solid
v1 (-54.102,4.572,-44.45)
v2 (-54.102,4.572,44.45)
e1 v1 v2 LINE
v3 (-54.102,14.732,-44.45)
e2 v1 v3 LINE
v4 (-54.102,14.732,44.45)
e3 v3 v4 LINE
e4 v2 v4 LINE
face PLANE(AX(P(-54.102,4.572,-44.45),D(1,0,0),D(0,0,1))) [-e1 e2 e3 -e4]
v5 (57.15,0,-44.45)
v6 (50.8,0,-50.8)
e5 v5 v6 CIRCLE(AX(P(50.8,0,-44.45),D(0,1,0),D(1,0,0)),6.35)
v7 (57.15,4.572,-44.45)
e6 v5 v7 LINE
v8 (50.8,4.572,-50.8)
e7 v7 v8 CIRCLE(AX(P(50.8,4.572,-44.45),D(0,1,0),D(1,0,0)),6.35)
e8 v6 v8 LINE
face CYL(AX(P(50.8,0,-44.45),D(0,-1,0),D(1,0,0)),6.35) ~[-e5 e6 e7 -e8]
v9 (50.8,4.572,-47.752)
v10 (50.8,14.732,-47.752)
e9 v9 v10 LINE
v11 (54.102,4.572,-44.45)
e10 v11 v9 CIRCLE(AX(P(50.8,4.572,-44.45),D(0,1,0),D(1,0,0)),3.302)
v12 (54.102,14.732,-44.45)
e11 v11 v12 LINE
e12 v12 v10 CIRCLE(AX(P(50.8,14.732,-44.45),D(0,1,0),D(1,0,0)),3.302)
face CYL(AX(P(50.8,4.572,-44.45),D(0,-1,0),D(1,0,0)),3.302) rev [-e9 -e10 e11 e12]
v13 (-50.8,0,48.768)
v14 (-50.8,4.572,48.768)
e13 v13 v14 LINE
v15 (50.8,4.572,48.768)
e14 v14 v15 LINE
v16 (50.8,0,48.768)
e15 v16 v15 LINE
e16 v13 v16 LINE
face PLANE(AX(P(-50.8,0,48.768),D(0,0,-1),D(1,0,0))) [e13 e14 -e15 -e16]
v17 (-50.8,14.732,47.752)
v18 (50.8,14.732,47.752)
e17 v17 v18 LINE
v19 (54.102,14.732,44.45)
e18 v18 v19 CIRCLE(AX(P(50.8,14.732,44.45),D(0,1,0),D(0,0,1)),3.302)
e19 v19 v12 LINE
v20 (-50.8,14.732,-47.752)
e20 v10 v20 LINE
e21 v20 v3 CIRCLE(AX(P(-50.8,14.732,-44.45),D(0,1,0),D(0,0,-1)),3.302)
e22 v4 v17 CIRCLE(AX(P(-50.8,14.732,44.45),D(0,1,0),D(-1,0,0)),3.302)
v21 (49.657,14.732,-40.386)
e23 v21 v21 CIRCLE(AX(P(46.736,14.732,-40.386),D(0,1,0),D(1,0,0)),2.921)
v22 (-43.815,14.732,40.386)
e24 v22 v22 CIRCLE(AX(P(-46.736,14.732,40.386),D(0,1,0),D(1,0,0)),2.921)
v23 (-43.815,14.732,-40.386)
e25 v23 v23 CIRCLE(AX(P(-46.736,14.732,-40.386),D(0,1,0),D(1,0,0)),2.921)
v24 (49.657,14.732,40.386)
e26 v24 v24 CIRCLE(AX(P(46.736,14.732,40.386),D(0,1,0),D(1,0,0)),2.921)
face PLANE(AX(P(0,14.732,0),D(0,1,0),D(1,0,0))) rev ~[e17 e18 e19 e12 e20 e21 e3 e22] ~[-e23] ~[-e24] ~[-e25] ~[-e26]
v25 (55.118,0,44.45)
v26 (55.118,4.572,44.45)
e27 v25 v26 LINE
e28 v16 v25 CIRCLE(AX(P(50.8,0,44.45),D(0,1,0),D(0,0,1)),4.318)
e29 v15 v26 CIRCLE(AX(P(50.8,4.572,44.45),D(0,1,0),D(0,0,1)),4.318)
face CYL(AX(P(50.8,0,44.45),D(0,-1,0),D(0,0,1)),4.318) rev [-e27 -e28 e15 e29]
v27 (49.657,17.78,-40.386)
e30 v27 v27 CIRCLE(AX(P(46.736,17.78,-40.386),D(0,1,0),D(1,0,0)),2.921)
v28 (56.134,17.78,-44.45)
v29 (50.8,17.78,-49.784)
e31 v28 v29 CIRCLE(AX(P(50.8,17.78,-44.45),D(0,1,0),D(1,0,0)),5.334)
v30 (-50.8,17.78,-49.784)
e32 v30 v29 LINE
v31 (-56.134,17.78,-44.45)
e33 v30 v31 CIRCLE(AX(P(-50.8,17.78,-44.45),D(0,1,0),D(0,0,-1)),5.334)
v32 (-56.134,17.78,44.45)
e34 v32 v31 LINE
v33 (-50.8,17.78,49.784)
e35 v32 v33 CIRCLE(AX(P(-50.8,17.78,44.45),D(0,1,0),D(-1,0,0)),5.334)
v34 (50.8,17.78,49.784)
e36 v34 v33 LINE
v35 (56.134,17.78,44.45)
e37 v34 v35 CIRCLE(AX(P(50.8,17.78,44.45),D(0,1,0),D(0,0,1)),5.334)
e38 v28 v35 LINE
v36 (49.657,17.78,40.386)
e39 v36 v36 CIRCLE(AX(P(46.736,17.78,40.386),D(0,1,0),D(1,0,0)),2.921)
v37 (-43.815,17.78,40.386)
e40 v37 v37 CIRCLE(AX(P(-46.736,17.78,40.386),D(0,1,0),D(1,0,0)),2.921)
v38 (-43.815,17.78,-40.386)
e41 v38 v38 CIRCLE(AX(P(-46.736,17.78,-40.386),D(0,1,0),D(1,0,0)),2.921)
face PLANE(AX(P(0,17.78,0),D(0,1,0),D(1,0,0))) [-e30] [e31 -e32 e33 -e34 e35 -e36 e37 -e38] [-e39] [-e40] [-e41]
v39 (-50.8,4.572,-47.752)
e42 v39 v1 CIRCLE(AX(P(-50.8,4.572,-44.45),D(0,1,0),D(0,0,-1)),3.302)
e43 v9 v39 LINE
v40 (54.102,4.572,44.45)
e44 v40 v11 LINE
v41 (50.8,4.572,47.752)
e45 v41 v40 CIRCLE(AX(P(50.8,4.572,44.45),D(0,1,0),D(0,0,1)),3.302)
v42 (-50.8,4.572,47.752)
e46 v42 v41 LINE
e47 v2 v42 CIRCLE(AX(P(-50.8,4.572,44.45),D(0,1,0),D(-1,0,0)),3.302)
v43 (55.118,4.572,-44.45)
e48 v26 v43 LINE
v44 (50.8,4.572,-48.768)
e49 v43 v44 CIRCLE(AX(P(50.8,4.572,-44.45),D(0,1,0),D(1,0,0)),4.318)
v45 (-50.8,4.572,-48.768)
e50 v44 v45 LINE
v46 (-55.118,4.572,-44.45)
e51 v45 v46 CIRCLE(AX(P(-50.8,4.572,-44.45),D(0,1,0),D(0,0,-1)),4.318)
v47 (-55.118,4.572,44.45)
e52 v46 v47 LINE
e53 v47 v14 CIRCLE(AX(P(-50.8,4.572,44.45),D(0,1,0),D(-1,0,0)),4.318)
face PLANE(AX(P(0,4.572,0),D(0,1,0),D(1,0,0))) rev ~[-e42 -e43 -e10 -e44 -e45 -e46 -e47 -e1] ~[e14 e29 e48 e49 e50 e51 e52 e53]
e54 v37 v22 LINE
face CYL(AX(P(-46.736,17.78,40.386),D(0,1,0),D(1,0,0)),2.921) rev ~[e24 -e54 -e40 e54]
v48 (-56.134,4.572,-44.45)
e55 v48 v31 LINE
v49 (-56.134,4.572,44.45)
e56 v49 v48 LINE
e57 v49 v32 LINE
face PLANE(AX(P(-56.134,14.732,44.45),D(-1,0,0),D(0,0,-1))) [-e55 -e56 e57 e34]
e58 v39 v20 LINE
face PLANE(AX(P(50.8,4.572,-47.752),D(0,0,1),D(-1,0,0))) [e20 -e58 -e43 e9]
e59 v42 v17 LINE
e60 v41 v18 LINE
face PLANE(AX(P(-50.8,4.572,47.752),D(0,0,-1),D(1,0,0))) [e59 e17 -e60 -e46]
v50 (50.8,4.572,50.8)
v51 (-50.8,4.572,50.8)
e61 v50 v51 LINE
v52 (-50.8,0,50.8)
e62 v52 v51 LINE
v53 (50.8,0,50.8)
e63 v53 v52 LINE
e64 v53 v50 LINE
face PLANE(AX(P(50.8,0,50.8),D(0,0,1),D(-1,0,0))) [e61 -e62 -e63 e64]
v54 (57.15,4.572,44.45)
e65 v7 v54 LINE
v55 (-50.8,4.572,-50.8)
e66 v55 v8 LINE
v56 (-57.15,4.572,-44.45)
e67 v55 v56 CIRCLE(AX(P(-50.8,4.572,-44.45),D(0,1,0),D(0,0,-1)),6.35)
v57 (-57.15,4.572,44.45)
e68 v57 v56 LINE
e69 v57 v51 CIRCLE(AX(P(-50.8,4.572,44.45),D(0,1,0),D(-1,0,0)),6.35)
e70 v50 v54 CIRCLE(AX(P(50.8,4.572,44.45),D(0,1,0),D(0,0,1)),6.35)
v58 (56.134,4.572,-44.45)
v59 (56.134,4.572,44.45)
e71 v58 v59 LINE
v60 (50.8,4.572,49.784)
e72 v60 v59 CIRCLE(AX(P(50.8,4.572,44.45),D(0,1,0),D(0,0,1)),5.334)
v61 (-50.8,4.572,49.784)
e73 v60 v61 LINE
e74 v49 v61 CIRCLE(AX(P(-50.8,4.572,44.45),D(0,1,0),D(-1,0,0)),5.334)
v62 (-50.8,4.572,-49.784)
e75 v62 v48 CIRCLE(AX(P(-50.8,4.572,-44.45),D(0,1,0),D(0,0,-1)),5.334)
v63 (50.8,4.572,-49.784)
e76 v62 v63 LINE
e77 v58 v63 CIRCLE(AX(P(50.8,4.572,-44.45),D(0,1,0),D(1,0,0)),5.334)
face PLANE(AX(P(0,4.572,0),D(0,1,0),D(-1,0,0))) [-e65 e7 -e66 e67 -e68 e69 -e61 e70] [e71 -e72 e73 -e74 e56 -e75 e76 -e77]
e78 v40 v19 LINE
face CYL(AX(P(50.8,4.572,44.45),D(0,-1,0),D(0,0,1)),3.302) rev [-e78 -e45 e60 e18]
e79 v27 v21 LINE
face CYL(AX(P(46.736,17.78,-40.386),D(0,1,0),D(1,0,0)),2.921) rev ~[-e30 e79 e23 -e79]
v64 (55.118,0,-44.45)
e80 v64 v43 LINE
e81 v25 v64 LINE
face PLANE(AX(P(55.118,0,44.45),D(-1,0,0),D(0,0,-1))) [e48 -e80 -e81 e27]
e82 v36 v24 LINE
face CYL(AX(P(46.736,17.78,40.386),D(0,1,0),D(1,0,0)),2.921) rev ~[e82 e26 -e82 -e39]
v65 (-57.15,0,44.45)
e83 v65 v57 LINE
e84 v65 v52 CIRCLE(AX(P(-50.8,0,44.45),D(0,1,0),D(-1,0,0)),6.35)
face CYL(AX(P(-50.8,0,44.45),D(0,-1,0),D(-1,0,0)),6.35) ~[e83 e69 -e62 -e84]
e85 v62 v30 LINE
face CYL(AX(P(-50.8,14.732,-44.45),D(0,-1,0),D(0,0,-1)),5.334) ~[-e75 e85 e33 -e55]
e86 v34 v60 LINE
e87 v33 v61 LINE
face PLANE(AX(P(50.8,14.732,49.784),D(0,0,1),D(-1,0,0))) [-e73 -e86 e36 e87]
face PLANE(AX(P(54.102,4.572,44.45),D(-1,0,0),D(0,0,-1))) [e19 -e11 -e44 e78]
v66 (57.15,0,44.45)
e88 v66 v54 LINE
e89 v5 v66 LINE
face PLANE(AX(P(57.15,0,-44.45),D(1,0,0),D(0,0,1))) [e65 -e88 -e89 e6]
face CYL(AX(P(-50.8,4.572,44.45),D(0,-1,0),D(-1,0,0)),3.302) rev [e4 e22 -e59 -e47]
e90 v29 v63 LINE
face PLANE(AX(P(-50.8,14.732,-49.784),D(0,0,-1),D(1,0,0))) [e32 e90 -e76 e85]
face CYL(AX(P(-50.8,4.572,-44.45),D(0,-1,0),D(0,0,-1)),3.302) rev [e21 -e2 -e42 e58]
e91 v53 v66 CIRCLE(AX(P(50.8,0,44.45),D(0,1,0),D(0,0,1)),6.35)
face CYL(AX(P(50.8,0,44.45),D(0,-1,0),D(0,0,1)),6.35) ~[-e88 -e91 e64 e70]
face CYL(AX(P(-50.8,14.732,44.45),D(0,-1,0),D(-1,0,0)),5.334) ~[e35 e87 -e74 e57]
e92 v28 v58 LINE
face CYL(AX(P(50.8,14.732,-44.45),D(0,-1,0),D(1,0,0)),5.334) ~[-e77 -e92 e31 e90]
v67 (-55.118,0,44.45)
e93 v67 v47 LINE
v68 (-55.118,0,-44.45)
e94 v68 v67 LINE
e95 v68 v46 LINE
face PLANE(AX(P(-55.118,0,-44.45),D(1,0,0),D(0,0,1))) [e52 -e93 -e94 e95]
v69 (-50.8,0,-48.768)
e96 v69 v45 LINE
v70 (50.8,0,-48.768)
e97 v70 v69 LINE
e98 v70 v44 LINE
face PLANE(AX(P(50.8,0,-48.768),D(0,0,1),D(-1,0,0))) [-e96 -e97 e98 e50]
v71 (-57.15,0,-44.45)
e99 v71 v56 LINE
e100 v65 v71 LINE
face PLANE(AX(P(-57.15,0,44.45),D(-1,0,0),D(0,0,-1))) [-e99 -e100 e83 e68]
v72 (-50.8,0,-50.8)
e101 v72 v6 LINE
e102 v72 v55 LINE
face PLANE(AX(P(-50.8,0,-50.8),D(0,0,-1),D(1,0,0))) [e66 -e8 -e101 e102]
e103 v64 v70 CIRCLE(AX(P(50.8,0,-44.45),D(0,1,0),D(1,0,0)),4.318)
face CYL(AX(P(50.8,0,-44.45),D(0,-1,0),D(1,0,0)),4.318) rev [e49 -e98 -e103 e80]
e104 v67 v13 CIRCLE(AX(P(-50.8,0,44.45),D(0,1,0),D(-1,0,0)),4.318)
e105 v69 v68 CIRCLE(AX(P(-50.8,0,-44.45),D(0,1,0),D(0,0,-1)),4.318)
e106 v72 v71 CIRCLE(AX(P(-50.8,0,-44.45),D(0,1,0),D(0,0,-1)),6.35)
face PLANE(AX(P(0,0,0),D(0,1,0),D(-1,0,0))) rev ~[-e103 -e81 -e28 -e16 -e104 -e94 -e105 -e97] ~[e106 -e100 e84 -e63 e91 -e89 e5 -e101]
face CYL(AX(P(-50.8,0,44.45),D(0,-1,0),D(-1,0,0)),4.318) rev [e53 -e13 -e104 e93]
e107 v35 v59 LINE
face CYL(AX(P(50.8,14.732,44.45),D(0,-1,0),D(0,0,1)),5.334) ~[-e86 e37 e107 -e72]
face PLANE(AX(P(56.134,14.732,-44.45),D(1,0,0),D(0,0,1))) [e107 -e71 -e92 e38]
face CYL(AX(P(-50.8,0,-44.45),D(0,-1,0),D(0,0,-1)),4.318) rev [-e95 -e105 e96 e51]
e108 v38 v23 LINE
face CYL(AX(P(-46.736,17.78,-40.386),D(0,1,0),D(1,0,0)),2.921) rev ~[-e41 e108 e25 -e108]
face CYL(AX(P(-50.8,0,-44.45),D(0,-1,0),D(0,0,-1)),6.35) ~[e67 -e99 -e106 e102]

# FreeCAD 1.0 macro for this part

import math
import FreeCAD as App
import Part
import Sketcher

V = App.Vector
Q = App.Units.Quantity

doc = App.newDocument("Part")
body = doc.addObject("PartDesign::Body", "Body")

sketch1 = doc.addObject("Sketcher::SketchObject", "Sketch")
body.addObject(sketch1)
sketch1.AttachmentSupport = (doc.XZ_Plane, [""])
sketch1.MapMode = "FlatFace"
sketch1.addGeometry(Part.LineSegment(V(-50.8, 50.8, 0), V(50.8, 50.8, 0)), False)
sketch1.addGeometry(Part.ArcOfCircle(Part.Circle(V(50.8, 44.5, 0), V(0, 0, 1), 6.3), math.radians(0), math.radians(90)), False)
sketch1.addGeometry(Part.LineSegment(V(57.1, 44.5, 0), V(57.1, -44.5, 0)), False)
sketch1.addGeometry(Part.ArcOfCircle(Part.Circle(V(50.8, -44.5, 0), V(0, 0, 1), 6.4), math.radians(-90), math.radians(0)), False)
sketch1.addGeometry(Part.LineSegment(V(50.8, -50.8, 0), V(-50.8, -50.8, 0)), False)
sketch1.addGeometry(Part.ArcOfCircle(Part.Circle(V(-50.8, -44.5, 0), V(0, 0, 1), 6.3), math.radians(180), math.radians(270)), False)
sketch1.addGeometry(Part.LineSegment(V(-57.1, -44.5, 0), V(-57.1, 44.5, 0)), False)
sketch1.addGeometry(Part.ArcOfCircle(Part.Circle(V(-50.8, 44.5, 0), V(0, 0, 1), 6.4), math.radians(90), math.radians(180)), False)
sketch1.addGeometry(Part.LineSegment(V(50.8, 48.8, 0), V(-50.8, 48.8, 0)), False)
sketch1.addGeometry(Part.ArcOfCircle(Part.Circle(V(-50.8, 44.5, 0), V(0, 0, 1), 4.3), math.radians(90), math.radians(180)), False)
sketch1.addGeometry(Part.LineSegment(V(-55.1, 44.5, 0), V(-55.1, -44.5, 0)), False)
sketch1.addGeometry(Part.ArcOfCircle(Part.Circle(V(-50.8, -44.5, 0), V(0, 0, 1), 4.3), math.radians(180), math.radians(270)), False)
sketch1.addGeometry(Part.LineSegment(V(-50.8, -48.8, 0), V(50.8, -48.8, 0)), False)
sketch1.addGeometry(Part.ArcOfCircle(Part.Circle(V(50.8, -44.5, 0), V(0, 0, 1), 4.3), math.radians(-90), math.radians(0)), False)
sketch1.addGeometry(Part.LineSegment(V(55.1, -44.5, 0), V(55.1, 44.5, 0)), False)
sketch1.addGeometry(Part.ArcOfCircle(Part.Circle(V(50.8, 44.5, 0), V(0, 0, 1), 4.3), math.radians(0), math.radians(90)), False)
sketch1.addConstraint(Sketcher.Constraint("Tangent", 0, 2, 1, 2))
sketch1.addConstraint(Sketcher.Constraint("Tangent", 1, 1, 2, 1))
sketch1.addConstraint(Sketcher.Constraint("Tangent", 2, 2, 3, 2))
sketch1.addConstraint(Sketcher.Constraint("Tangent", 3, 1, 4, 1))
sketch1.addConstraint(Sketcher.Constraint("Tangent", 4, 2, 5, 2))
sketch1.addConstraint(Sketcher.Constraint("Tangent", 5, 1, 6, 1))
sketch1.addConstraint(Sketcher.Constraint("Tangent", 6, 2, 7, 2))
sketch1.addConstraint(Sketcher.Constraint("Tangent", 7, 1, 0, 1))
sketch1.addConstraint(Sketcher.Constraint("Tangent", 8, 2, 9, 1))
sketch1.addConstraint(Sketcher.Constraint("Tangent", 9, 2, 10, 1))
sketch1.addConstraint(Sketcher.Constraint("Tangent", 10, 2, 11, 1))
sketch1.addConstraint(Sketcher.Constraint("Tangent", 11, 2, 12, 1))
sketch1.addConstraint(Sketcher.Constraint("Tangent", 12, 2, 13, 1))
sketch1.addConstraint(Sketcher.Constraint("Tangent", 13, 2, 14, 1))
sketch1.addConstraint(Sketcher.Constraint("Tangent", 14, 2, 15, 1))
sketch1.addConstraint(Sketcher.Constraint("Tangent", 15, 2, 8, 1))
sketch1.addConstraint(Sketcher.Constraint("Horizontal", 0))
sketch1.addConstraint(Sketcher.Constraint("Vertical", 2))
sketch1.addConstraint(Sketcher.Constraint("Horizontal", 4))
sketch1.addConstraint(Sketcher.Constraint("Vertical", 6))
sketch1.addConstraint(Sketcher.Constraint("Horizontal", 8))
sketch1.addConstraint(Sketcher.Constraint("Vertical", 10))
sketch1.addConstraint(Sketcher.Constraint("Horizontal", 12))
sketch1.addConstraint(Sketcher.Constraint("Vertical", 14))
sketch1.addConstraint(Sketcher.Constraint("Coincident", 9, 3, 7, 3))
sketch1.addConstraint(Sketcher.Constraint("Coincident", 11, 3, 5, 3))
sketch1.addConstraint(Sketcher.Constraint("Coincident", 13, 3, 3, 3))
sketch1.addConstraint(Sketcher.Constraint("Equal", 1, 3))
sketch1.addConstraint(Sketcher.Constraint("Equal", 3, 5))
sketch1.addConstraint(Sketcher.Constraint("Equal", 5, 7))
sketch1.addConstraint(Sketcher.Constraint("Equal", 13, 15))
sketch1.addConstraint(Sketcher.Constraint("Symmetric", 1, 3, 5, 3, -1, 1))
sketch1.addConstraint(Sketcher.Constraint("DistanceX", 0, 1, 0, 2, Q("4 in")))
sketch1.addConstraint(Sketcher.Constraint("Radius", 1, Q("0.25 in")))
sketch1.addConstraint(Sketcher.Constraint("Radius", 9, Q("0.17 in")))
sketch1.addConstraint(Sketcher.Constraint("DistanceY", 2, 2, 2, 1, Q("3.5 in")))
pad1 = doc.addObject("PartDesign::Pad", "Pad")
body.addObject(pad1)
pad1.Profile = sketch1
pad1.Length = Q("0.18 in")
pad1.Reversed = True

sketch2 = doc.addObject("Sketcher::SketchObject", "Sketch001")
body.addObject(sketch2)
sketch2.AttachmentSupport = (doc.XZ_Plane, [""])
sketch2.MapMode = "FlatFace"
sketch2.AttachmentOffset = App.Placement(V(0, 0, -0.18 * 25.4), App.Rotation())
sketch2.addGeometry(Part.LineSegment(V(50.8, -49.8, 0), V(-50.8, -49.8, 0)), False)
sketch2.addGeometry(Part.ArcOfCircle(Part.Circle(V(-50.8, -44.5, 0), V(0, 0, 1), 5.3), math.radians(180), math.radians(270)), False)
sketch2.addGeometry(Part.LineSegment(V(-56.1, -44.5, 0), V(-56.1, 44.5, 0)), False)
sketch2.addGeometry(Part.ArcOfCircle(Part.Circle(V(-50.8, 44.5, 0), V(0, 0, 1), 5.3), math.radians(90), math.radians(180)), False)
sketch2.addGeometry(Part.LineSegment(V(-50.8, 49.8, 0), V(50.8, 49.8, 0)), False)
sketch2.addGeometry(Part.ArcOfCircle(Part.Circle(V(50.8, 44.5, 0), V(0, 0, 1), 5.3), math.radians(0), math.radians(90)), False)
sketch2.addGeometry(Part.LineSegment(V(56.1, 44.5, 0), V(56.1, -44.5, 0)), False)
sketch2.addGeometry(Part.ArcOfCircle(Part.Circle(V(50.8, -44.5, 0), V(0, 0, 1), 5.3), math.radians(-90), math.radians(0)), False)
sketch2.addGeometry(Part.LineSegment(V(-54.1, 44.5, 0), V(-54.1, -44.5, 0)), False)
sketch2.addGeometry(Part.ArcOfCircle(Part.Circle(V(-50.8, -44.5, 0), V(0, 0, 1), 3.3), math.radians(180), math.radians(270)), False)
sketch2.addGeometry(Part.LineSegment(V(-50.8, -47.8, 0), V(50.8, -47.8, 0)), False)
sketch2.addGeometry(Part.ArcOfCircle(Part.Circle(V(50.8, -44.5, 0), V(0, 0, 1), 3.3), math.radians(-90), math.radians(0)), False)
sketch2.addGeometry(Part.LineSegment(V(54.1, -44.5, 0), V(54.1, 44.5, 0)), False)
sketch2.addGeometry(Part.ArcOfCircle(Part.Circle(V(50.8, 44.5, 0), V(0, 0, 1), 3.3), math.radians(0), math.radians(90)), False)
sketch2.addGeometry(Part.LineSegment(V(50.8, 47.8, 0), V(-50.8, 47.8, 0)), False)
sketch2.addGeometry(Part.ArcOfCircle(Part.Circle(V(-50.8, 44.5, 0), V(0, 0, 1), 3.3), math.radians(90), math.radians(180)), False)
sketch2.addConstraint(Sketcher.Constraint("Tangent", 0, 2, 1, 2))
sketch2.addConstraint(Sketcher.Constraint("Tangent", 1, 1, 2, 1))
sketch2.addConstraint(Sketcher.Constraint("Tangent", 2, 2, 3, 2))
sketch2.addConstraint(Sketcher.Constraint("Tangent", 3, 1, 4, 1))
sketch2.addConstraint(Sketcher.Constraint("Tangent", 4, 2, 5, 2))
sketch2.addConstraint(Sketcher.Constraint("Tangent", 5, 1, 6, 1))
sketch2.addConstraint(Sketcher.Constraint("Tangent", 6, 2, 7, 2))
sketch2.addConstraint(Sketcher.Constraint("Tangent", 7, 1, 0, 1))
sketch2.addConstraint(Sketcher.Constraint("Tangent", 8, 2, 9, 1))
sketch2.addConstraint(Sketcher.Constraint("Tangent", 9, 2, 10, 1))
sketch2.addConstraint(Sketcher.Constraint("Tangent", 10, 2, 11, 1))
sketch2.addConstraint(Sketcher.Constraint("Tangent", 11, 2, 12, 1))
sketch2.addConstraint(Sketcher.Constraint("Tangent", 12, 2, 13, 1))
sketch2.addConstraint(Sketcher.Constraint("Tangent", 13, 2, 14, 1))
sketch2.addConstraint(Sketcher.Constraint("Tangent", 14, 2, 15, 1))
sketch2.addConstraint(Sketcher.Constraint("Tangent", 15, 2, 8, 1))
sketch2.addConstraint(Sketcher.Constraint("Horizontal", 0))
sketch2.addConstraint(Sketcher.Constraint("Vertical", 2))
sketch2.addConstraint(Sketcher.Constraint("Horizontal", 4))
sketch2.addConstraint(Sketcher.Constraint("Vertical", 6))
sketch2.addConstraint(Sketcher.Constraint("Vertical", 8))
sketch2.addConstraint(Sketcher.Constraint("Horizontal", 10))
sketch2.addConstraint(Sketcher.Constraint("Vertical", 12))
sketch2.addConstraint(Sketcher.Constraint("Horizontal", 14))
sketch2.addConstraint(Sketcher.Constraint("Coincident", 9, 3, 1, 3))
sketch2.addConstraint(Sketcher.Constraint("Coincident", 11, 3, 7, 3))
sketch2.addConstraint(Sketcher.Constraint("Coincident", 13, 3, 5, 3))
sketch2.addConstraint(Sketcher.Constraint("Equal", 1, 3))
sketch2.addConstraint(Sketcher.Constraint("Equal", 3, 5))
sketch2.addConstraint(Sketcher.Constraint("Equal", 5, 7))
sketch2.addConstraint(Sketcher.Constraint("Equal", 13, 15))
sketch2.addConstraint(Sketcher.Constraint("Symmetric", 1, 3, 5, 3, -1, 1))
sketch2.addConstraint(Sketcher.Constraint("DistanceX", 0, 2, 0, 1, Q("4 in")))
sketch2.addConstraint(Sketcher.Constraint("Radius", 1, Q("0.21 in")))
sketch2.addConstraint(Sketcher.Constraint("Radius", 9, Q("0.13 in")))
sketch2.addConstraint(Sketcher.Constraint("DistanceY", 2, 1, 2, 2, Q("3.5 in")))
pad2 = doc.addObject("PartDesign::Pad", "Pad001")
body.addObject(pad2)
pad2.Profile = sketch2
pad2.Length = Q("0.4 in")
pad2.Reversed = True

sketch3 = doc.addObject("Sketcher::SketchObject", "Sketch002")
body.addObject(sketch3)
sketch3.AttachmentSupport = (doc.XZ_Plane, [""])
sketch3.MapMode = "FlatFace"
sketch3.AttachmentOffset = App.Placement(V(0, 0, -0.58 * 25.4), App.Rotation())
sketch3.addGeometry(Part.LineSegment(V(51, -50, 0), V(-51, -50, 0)), False)
sketch3.addGeometry(Part.ArcOfCircle(Part.Circle(V(-51, -44, 0), V(0, 0, 1), 5), math.radians(180), math.radians(270)), False)
sketch3.addGeometry(Part.LineSegment(V(-56, -44, 0), V(-56, 44, 0)), False)
sketch3.addGeometry(Part.ArcOfCircle(Part.Circle(V(-51, 44, 0), V(0, 0, 1), 5), math.radians(90), math.radians(180)), False)
sketch3.addGeometry(Part.LineSegment(V(-51, 50, 0), V(51, 50, 0)), False)
sketch3.addGeometry(Part.ArcOfCircle(Part.Circle(V(51, 44, 0), V(0, 0, 1), 5), math.radians(0), math.radians(90)), False)
sketch3.addGeometry(Part.LineSegment(V(56, 44, 0), V(56, -44, 0)), False)
sketch3.addGeometry(Part.ArcOfCircle(Part.Circle(V(51, -44, 0), V(0, 0, 1), 5), math.radians(-90), math.radians(0)), False)
sketch3.addConstraint(Sketcher.Constraint("Tangent", 0, 2, 1, 2))
sketch3.addConstraint(Sketcher.Constraint("Tangent", 1, 1, 2, 1))
sketch3.addConstraint(Sketcher.Constraint("Tangent", 2, 2, 3, 2))
sketch3.addConstraint(Sketcher.Constraint("Tangent", 3, 1, 4, 1))
sketch3.addConstraint(Sketcher.Constraint("Tangent", 4, 2, 5, 2))
sketch3.addConstraint(Sketcher.Constraint("Tangent", 5, 1, 6, 1))
sketch3.addConstraint(Sketcher.Constraint("Tangent", 6, 2, 7, 2))
sketch3.addConstraint(Sketcher.Constraint("Tangent", 7, 1, 0, 1))
sketch3.addConstraint(Sketcher.Constraint("Horizontal", 0))
sketch3.addConstraint(Sketcher.Constraint("Vertical", 2))
sketch3.addConstraint(Sketcher.Constraint("Horizontal", 4))
sketch3.addConstraint(Sketcher.Constraint("Vertical", 6))
sketch3.addConstraint(Sketcher.Constraint("Equal", 1, 3))
sketch3.addConstraint(Sketcher.Constraint("Equal", 3, 5))
sketch3.addConstraint(Sketcher.Constraint("Equal", 5, 7))
sketch3.addConstraint(Sketcher.Constraint("Symmetric", 1, 3, 5, 3, -1, 1))
sketch3.addConstraint(Sketcher.Constraint("DistanceX", 0, 2, 0, 1, Q("4 in")))
sketch3.addConstraint(Sketcher.Constraint("Radius", 1, Q("0.21 in")))
sketch3.addConstraint(Sketcher.Constraint("DistanceY", 2, 1, 2, 2, Q("3.5 in")))
pad3 = doc.addObject("PartDesign::Pad", "Pad002")
body.addObject(pad3)
pad3.Profile = sketch3
pad3.Length = Q("0.12 in")
pad3.Reversed = True

sketch4 = doc.addObject("Sketcher::SketchObject", "Sketch003")
body.addObject(sketch4)
sketch4.AttachmentSupport = (doc.XZ_Plane, [""])
sketch4.MapMode = "FlatFace"
sketch4.AttachmentOffset = App.Placement(V(0, 0, -0.7 * 25.4), App.Rotation())
sketch4.addGeometry(Part.Circle(V(-46.7, -40.4, 0), V(0, 0, 1), 2.9), False)
sketch4.addGeometry(Part.Circle(V(-46.7, 40.4, 0), V(0, 0, 1), 2.9), False)
sketch4.addGeometry(Part.Circle(V(46.7, 40.4, 0), V(0, 0, 1), 2.9), False)
sketch4.addGeometry(Part.Circle(V(46.7, -40.4, 0), V(0, 0, 1), 2.9), False)
sketch4.addConstraint(Sketcher.Constraint("Equal", 0, 1))
sketch4.addConstraint(Sketcher.Constraint("Equal", 1, 2))
sketch4.addConstraint(Sketcher.Constraint("Equal", 2, 3))
sketch4.addConstraint(Sketcher.Constraint("Symmetric", 0, 3, 2, 3, -1, 1))
sketch4.addConstraint(Sketcher.Constraint("Symmetric", 1, 3, 3, 3, -1, 1))
sketch4.addConstraint(Sketcher.Constraint("Symmetric", 1, 3, 2, 3, -2))
sketch4.addConstraint(Sketcher.Constraint("Diameter", 0, Q("0.23 in")))
sketch4.addConstraint(Sketcher.Constraint("DistanceX", 0, 3, -1, 1, Q("1.84 in")))
sketch4.addConstraint(Sketcher.Constraint("DistanceY", 0, 3, -1, 1, Q("1.59 in")))
pocket1 = doc.addObject("PartDesign::Pocket", "Pocket")
body.addObject(pocket1)
pocket1.Profile = sketch4
pocket1.Type = "ThroughAll"
pocket1.Reversed = True

doc.recompute()
